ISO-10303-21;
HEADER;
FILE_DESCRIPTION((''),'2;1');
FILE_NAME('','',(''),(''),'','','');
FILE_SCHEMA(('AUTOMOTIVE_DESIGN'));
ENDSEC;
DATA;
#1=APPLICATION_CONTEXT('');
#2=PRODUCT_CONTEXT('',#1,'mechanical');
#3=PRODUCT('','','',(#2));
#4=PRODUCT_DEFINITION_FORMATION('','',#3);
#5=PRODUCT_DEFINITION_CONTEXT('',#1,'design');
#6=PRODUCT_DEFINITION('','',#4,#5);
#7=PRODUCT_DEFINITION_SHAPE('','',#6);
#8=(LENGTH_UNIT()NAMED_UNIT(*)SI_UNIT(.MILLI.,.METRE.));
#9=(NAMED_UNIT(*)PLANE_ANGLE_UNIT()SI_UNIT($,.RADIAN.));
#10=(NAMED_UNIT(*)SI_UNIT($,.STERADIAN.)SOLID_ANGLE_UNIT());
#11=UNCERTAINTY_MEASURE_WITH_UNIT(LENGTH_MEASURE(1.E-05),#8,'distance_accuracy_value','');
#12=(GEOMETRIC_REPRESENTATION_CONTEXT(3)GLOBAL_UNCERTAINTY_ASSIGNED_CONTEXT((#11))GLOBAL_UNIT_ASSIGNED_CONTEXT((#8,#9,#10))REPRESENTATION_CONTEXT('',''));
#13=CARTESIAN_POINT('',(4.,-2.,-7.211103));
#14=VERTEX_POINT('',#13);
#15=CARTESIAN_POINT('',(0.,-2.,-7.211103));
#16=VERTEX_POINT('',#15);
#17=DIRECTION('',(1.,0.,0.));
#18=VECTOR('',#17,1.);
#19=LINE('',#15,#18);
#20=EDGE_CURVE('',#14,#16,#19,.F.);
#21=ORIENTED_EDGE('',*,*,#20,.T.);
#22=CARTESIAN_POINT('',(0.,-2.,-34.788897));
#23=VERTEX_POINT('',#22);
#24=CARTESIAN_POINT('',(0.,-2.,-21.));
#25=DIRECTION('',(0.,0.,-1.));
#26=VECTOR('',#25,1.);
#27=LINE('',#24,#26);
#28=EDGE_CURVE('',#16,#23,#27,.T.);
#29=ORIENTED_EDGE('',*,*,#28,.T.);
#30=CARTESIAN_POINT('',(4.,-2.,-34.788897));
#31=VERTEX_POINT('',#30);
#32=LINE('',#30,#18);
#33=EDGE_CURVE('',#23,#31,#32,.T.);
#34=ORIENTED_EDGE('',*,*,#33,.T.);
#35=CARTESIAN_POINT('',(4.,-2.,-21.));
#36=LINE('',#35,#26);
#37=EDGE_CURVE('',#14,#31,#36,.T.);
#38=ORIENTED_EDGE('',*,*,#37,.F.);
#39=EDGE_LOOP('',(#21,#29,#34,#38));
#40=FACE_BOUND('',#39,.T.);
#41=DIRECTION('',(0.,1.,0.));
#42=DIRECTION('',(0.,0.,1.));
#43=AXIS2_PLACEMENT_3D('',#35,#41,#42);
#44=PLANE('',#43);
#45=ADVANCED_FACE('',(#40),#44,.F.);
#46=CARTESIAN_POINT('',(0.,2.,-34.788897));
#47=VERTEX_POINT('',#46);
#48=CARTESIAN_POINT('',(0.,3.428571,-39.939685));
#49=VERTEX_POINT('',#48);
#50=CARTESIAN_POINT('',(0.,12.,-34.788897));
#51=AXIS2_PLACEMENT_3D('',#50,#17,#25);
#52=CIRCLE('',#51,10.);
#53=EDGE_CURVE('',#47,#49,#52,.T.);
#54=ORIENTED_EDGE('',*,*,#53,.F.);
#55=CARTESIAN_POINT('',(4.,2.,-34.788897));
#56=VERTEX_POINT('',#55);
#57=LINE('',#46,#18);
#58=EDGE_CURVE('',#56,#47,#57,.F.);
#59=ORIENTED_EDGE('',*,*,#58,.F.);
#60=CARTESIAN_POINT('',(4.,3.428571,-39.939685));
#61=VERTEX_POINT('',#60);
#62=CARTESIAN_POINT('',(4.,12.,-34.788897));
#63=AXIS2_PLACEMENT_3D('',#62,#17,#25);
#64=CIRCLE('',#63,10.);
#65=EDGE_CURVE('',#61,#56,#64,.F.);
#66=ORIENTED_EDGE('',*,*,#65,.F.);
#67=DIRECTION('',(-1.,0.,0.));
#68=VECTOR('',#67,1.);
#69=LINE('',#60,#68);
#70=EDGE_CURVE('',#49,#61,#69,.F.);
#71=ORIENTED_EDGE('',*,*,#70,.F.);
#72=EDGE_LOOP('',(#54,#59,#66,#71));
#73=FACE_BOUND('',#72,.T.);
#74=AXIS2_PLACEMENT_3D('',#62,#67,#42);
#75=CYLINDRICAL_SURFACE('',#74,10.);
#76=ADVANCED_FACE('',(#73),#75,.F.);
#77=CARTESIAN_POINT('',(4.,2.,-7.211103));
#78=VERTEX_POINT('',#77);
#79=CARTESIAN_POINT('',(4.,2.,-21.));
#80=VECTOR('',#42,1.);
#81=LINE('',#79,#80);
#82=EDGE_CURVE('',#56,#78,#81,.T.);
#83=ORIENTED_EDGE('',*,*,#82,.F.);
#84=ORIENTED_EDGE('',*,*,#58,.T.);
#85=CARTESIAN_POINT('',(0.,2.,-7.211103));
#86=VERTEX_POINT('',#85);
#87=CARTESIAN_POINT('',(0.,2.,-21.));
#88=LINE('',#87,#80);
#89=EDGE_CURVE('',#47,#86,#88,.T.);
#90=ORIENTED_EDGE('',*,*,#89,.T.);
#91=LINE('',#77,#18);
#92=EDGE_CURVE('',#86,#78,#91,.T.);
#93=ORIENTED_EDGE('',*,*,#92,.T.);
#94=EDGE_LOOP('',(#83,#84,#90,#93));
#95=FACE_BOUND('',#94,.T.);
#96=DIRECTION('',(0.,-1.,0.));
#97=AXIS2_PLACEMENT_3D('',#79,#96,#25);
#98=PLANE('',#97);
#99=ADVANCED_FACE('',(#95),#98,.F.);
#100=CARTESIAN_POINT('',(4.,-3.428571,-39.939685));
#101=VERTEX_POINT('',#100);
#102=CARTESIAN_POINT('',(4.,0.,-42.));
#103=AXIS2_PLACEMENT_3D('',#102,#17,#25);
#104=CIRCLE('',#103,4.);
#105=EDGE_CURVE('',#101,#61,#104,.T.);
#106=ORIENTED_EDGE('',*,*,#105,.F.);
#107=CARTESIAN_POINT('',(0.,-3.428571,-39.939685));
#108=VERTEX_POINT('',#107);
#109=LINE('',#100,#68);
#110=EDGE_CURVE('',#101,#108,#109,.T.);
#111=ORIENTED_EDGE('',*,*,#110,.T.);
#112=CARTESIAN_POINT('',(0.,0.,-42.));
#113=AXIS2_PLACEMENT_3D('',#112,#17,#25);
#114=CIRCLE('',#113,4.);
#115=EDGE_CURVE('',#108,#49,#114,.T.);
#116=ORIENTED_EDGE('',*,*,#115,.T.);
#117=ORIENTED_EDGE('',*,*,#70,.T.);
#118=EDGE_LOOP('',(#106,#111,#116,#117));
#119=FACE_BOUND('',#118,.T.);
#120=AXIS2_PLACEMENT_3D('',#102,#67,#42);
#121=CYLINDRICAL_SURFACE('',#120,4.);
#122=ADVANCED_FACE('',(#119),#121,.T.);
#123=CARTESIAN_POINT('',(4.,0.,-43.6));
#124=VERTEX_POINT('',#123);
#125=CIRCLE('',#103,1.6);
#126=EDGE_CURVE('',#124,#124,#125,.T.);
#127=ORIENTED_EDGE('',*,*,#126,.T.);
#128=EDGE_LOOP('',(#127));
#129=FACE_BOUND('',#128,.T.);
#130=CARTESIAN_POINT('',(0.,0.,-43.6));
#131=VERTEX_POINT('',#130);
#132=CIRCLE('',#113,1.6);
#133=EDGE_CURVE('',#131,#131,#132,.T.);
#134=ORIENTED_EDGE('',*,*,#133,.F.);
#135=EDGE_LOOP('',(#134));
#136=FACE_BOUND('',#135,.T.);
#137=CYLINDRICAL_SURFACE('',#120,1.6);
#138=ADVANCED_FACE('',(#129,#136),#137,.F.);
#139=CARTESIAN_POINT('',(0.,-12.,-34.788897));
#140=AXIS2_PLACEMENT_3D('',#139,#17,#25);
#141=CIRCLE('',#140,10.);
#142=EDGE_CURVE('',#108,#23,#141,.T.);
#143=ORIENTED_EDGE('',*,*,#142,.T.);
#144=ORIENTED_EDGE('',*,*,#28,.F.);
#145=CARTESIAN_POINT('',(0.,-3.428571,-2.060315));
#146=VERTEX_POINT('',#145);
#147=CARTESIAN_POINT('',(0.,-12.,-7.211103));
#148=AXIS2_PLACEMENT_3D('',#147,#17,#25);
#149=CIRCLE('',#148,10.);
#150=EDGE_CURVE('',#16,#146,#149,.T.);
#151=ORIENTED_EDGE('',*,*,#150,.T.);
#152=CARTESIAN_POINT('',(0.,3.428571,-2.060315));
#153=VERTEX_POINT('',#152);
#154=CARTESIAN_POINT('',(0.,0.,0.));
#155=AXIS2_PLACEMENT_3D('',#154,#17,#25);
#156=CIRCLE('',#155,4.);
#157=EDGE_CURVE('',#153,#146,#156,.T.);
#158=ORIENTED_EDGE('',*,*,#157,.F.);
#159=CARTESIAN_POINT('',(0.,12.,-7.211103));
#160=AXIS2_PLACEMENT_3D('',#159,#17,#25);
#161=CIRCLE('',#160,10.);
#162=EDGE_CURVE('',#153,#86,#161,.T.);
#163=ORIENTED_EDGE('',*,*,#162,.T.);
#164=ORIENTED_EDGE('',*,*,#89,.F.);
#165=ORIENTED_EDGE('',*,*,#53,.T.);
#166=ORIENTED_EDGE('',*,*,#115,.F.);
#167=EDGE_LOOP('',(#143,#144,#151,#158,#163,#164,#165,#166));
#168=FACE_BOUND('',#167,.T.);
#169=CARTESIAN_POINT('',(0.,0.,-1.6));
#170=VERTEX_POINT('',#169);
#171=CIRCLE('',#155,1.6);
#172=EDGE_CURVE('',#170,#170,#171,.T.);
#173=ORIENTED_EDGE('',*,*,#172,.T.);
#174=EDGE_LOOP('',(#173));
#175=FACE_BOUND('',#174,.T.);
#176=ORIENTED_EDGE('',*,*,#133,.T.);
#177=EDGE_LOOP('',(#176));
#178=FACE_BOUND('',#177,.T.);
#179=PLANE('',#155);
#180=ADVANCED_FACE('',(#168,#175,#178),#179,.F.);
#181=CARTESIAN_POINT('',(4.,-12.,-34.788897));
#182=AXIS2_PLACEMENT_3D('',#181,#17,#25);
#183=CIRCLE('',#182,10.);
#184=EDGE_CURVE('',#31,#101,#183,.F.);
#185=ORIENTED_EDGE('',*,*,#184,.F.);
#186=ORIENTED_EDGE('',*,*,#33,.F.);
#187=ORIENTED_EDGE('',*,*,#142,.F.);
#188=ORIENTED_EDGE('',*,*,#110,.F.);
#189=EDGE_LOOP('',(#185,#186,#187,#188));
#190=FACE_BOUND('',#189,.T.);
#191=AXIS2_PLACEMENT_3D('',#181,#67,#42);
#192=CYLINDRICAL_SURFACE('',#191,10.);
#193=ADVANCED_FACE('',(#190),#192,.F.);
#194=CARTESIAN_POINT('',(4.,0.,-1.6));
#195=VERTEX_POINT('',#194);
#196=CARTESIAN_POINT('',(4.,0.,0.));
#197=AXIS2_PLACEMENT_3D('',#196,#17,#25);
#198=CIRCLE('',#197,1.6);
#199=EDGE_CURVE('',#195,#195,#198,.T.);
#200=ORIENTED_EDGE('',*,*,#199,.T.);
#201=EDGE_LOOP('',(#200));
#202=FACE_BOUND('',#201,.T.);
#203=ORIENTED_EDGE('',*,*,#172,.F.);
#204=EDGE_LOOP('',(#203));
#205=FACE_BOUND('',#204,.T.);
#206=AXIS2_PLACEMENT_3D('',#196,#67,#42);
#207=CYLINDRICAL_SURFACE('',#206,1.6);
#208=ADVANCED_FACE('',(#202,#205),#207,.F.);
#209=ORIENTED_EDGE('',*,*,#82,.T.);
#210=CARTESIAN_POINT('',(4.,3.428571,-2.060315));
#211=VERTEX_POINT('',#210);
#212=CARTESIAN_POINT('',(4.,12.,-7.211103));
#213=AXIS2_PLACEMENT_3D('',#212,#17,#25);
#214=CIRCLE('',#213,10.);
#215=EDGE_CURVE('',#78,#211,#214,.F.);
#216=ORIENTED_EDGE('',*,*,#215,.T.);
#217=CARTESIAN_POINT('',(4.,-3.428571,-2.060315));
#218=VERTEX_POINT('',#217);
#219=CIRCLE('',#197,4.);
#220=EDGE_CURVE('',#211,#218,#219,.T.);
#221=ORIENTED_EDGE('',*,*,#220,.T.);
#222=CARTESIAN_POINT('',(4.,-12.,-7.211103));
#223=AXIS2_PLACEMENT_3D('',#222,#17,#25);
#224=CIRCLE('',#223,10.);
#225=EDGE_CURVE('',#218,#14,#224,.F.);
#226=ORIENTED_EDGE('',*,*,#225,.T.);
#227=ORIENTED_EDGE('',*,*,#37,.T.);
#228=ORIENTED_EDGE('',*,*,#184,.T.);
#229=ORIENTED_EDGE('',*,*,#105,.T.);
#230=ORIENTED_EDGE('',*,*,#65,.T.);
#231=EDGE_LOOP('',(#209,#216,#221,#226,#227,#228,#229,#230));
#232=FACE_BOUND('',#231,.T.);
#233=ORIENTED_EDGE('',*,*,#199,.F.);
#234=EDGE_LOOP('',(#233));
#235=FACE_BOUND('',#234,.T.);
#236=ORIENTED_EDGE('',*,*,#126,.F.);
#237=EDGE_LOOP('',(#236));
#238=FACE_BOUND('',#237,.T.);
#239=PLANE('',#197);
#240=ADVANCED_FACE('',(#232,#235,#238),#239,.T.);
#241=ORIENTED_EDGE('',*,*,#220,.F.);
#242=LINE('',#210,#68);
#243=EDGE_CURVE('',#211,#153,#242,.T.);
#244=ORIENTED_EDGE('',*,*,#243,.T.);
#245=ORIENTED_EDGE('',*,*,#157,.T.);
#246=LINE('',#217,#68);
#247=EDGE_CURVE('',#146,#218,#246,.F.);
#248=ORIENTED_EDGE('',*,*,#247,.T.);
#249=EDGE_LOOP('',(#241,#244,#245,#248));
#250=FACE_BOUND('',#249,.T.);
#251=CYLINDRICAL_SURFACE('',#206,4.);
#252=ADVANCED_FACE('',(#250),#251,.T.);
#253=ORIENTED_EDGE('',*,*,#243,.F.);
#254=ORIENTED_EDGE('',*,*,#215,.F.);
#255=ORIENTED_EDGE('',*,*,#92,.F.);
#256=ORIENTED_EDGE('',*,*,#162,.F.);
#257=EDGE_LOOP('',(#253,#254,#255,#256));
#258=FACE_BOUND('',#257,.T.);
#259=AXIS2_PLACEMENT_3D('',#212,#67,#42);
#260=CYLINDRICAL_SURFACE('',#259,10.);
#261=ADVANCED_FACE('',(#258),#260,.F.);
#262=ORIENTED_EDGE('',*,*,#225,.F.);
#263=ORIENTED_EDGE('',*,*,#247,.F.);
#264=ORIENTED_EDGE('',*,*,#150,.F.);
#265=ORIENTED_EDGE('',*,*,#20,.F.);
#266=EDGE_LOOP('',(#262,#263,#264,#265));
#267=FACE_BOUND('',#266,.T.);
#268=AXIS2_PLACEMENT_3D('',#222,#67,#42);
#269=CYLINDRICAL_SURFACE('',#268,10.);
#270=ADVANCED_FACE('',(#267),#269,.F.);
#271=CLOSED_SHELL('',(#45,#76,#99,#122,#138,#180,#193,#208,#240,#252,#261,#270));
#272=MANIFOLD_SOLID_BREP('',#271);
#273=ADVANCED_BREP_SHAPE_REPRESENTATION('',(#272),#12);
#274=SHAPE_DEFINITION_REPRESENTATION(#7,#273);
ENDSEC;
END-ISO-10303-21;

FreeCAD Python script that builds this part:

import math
import FreeCAD as App
import Part
import Sketcher
from FreeCAD import Vector
Q = App.Units.Quantity


def edges_at(feature, points):
    """Names of the edges that pass closest to the given points."""
    edges = feature.Shape.Edges
    near = lambda p: min(range(len(edges)), key=lambda i: edges[i].distToShape(Part.Vertex(*p))[0])
    return sorted({f"Edge{near(p) + 1}" for p in points})

doc = App.newDocument("Part")
params = doc.addObject("Spreadsheet::Sheet", "Params")
for row, (alias, value) in enumerate([
    ("sketch1_radius", "4 mm"),
    ("sketch1_diameter", "3.2 mm"),
    ("pad1_length", "4 mm"),
    ("fillet_radius", "10 mm"),
], start=1):
    params.set(f"A{row}", alias)
    params.set(f"B{row}", "=" + value)
    params.setAlias(f"B{row}", alias)

body = doc.addObject("PartDesign::Body", "Body")

# Sketch on YZ plane
sketch1 = body.newObject("Sketcher::SketchObject", "Sketch")
sketch1.AttachmentSupport = (doc.getObject("YZ_Plane"), [""])
sketch1.MapMode = "FlatFace"
sketch1.addGeometry([
    Part.ArcOfCircle(Part.Circle(Vector(0, -42, 0), Vector(0, 0, 1), 4), math.radians(120), math.radians(420)),  # 0
    Part.LineSegment(Vector(2, -38.5, 0), Vector(2, -3.5, 0)),  # 1
    Part.ArcOfCircle(Part.Circle(Vector(0, 0, 0), Vector(0, 0, 1), 4), math.radians(-60), math.radians(240)),  # 2
    Part.LineSegment(Vector(-2, -3.5, 0), Vector(-2, -38.5, 0)),  # 3
    Part.Circle(Vector(0, -42, 0), Vector(0, 0, 1), 1.6),  # 4
    Part.Circle(Vector(0, 0, 0), Vector(0, 0, 1), 1.6),  # 5
], False)
sketch1.addConstraint([
    Sketcher.Constraint("Coincident", 0, 2, 1, 1),
    Sketcher.Constraint("Coincident", 1, 2, 2, 1),
    Sketcher.Constraint("Coincident", 2, 2, 3, 1),
    Sketcher.Constraint("Coincident", 3, 2, 0, 1),
    Sketcher.Constraint("Vertical", 1),
    Sketcher.Constraint("Vertical", 3),
    Sketcher.Constraint("Coincident", 2, 3, -1, 1),
    Sketcher.Constraint("Coincident", 5, 3, -1, 1),
    Sketcher.Constraint("Coincident", 4, 3, 0, 3),
    Sketcher.Constraint("Equal", 0, 2),
    Sketcher.Constraint("Equal", 4, 5),
    Sketcher.Constraint("Symmetric", 0, 2, 3, 2, -2),
    Sketcher.Constraint("Radius", 0, Q("4 mm")),
    Sketcher.Constraint("Diameter", 4, Q("3.2 mm")),
    Sketcher.Constraint("DistanceY", 0, 3, -1, 1, Q("42 mm")),
    Sketcher.Constraint("DistanceX", -1, 1, 0, 2, Q("2 mm")),
])
sketch1.setExpression("Constraints[12]", "Params.sketch1_radius")
sketch1.setExpression("Constraints[13]", "Params.sketch1_diameter")
pad1 = body.newObject("PartDesign::Pad", "Pad")
pad1.Profile = sketch1
pad1.setExpression("Length", "Params.pad1_length")
doc.recompute()

fillet = body.newObject("PartDesign::Fillet", "Fillet")
fillet.Base = (pad1, edges_at(pad1, [
    (2, 2, -38.536),
    (2, -2, -38.536),
    (2, -2, -3.464),
    (2, 2, -3.464),
]))
fillet.setExpression("Radius", "Params.fillet_radius")

doc.recompute()
